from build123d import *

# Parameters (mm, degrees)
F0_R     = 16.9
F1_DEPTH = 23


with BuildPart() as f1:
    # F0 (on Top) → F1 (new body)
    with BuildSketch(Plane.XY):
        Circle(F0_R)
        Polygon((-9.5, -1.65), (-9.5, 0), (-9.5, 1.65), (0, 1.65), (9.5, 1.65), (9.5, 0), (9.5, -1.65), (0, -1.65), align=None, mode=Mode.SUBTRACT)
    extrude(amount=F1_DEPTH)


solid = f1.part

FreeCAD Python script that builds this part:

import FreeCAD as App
import Part
import Sketcher

V = App.Vector


def add_polygon(sketch, points):
    """Adds a closed chain of lines whose ends are joined by coincident constraints."""
    first, n = sketch.GeometryCount, len(points)
    for a, b in zip(points, points[1:] + points[:1]):
        sketch.addGeometry(Part.LineSegment(App.Vector(*a, 0), App.Vector(*b, 0)), False)
    for i in range(n):
        sketch.addConstraint(Sketcher.Constraint("Coincident", first + i, 2, first + (i + 1) % n, 1))

doc = App.newDocument("Part")
body = doc.addObject("PartDesign::Body", "Body")

# Sketch on XY plane
sketch1 = body.newObject("Sketcher::SketchObject", "Sketch")
sketch1.AttachmentSupport = (doc.getObject("XY_Plane"), [""])
sketch1.MapMode = "FlatFace"
sketch1.addGeometry(Part.Circle(V(0, 0, 0), V(0, 0, 1), 16.9), False)  # 0
add_polygon(sketch1, [(9.5, -1.6), (-9.5, -1.6), (-9.5, 1.6), (9.5, 1.6)])  # lines 1-4
sketch1.addConstraint([
    Sketcher.Constraint("Horizontal", 1),
    Sketcher.Constraint("Vertical", 2),
    Sketcher.Constraint("Horizontal", 3),
    Sketcher.Constraint("Vertical", 4),
    Sketcher.Constraint("Coincident", 0, 3, -1, 1),
    Sketcher.Constraint("Symmetric", 1, 2, 3, 2, -1, 1),
    Sketcher.Constraint("Diameter", 0, 33.8),
    Sketcher.Constraint("DistanceX", 1, 2, 1, 1, 19.0),
    Sketcher.Constraint("DistanceY", 2, 1, 2, 2, 3.3),
])
pad1 = body.newObject("PartDesign::Pad", "Pad")
pad1.Profile = sketch1
pad1.Length = 23

doc.recompute()
